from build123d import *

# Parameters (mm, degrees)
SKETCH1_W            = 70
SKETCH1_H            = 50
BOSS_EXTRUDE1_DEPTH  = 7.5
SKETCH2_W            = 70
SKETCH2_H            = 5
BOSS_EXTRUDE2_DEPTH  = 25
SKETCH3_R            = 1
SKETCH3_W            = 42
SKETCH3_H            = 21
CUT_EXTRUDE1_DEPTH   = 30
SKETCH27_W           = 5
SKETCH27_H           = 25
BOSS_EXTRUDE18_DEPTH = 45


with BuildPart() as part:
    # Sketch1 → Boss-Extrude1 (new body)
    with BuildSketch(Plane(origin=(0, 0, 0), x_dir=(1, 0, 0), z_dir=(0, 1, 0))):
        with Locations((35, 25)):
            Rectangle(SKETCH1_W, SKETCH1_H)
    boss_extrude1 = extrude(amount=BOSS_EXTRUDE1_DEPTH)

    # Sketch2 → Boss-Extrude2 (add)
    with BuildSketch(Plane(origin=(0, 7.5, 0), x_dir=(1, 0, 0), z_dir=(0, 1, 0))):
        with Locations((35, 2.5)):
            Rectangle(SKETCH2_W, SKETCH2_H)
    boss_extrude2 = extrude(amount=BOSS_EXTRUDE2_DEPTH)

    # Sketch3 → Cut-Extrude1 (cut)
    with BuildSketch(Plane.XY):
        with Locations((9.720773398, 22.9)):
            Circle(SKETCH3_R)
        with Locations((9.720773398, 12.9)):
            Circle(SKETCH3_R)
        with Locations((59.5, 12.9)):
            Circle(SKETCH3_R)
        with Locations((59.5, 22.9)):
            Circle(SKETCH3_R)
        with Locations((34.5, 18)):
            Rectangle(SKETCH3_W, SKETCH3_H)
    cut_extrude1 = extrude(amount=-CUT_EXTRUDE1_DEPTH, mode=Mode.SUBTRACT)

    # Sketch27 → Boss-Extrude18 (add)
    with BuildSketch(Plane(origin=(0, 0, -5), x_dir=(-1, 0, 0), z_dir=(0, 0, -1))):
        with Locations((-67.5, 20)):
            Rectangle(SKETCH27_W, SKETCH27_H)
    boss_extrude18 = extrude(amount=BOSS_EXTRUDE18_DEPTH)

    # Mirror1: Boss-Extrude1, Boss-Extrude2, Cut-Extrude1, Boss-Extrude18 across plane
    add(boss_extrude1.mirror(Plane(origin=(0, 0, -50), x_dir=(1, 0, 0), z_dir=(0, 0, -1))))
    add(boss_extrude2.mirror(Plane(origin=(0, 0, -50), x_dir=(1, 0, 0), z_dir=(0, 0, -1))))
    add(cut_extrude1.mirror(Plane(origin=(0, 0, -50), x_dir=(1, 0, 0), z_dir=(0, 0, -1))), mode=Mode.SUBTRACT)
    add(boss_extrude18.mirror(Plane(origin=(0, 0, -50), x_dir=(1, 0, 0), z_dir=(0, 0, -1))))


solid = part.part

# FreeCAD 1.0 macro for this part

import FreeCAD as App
import Part
import Sketcher

V = App.Vector

doc = App.newDocument("Part")
body = doc.addObject("PartDesign::Body", "Body")

# Sketch on XZ plane
sketch1 = body.newObject("Sketcher::SketchObject", "Sketch")
sketch1.AttachmentSupport = (doc.getObject("XZ_Plane"), [""])
sketch1.MapMode = "FlatFace"
sketch1.addGeometry(Part.LineSegment(V(0, -50, 0), V(0, 0, 0)), False)
sketch1.addGeometry(Part.LineSegment(V(0, 0, 0), V(70, 0, 0)), False)
sketch1.addGeometry(Part.LineSegment(V(70, 0, 0), V(70, -50, 0)), False)
sketch1.addGeometry(Part.LineSegment(V(70, -50, 0), V(0, -50, 0)), False)
sketch1.addConstraint(Sketcher.Constraint("Coincident", 0, 2, 1, 1))
sketch1.addConstraint(Sketcher.Constraint("Coincident", 1, 2, 2, 1))
sketch1.addConstraint(Sketcher.Constraint("Coincident", 2, 2, 3, 1))
sketch1.addConstraint(Sketcher.Constraint("Coincident", 3, 2, 0, 1))
sketch1.addConstraint(Sketcher.Constraint("Vertical", 0))
sketch1.addConstraint(Sketcher.Constraint("Horizontal", 1))
sketch1.addConstraint(Sketcher.Constraint("Vertical", 2))
sketch1.addConstraint(Sketcher.Constraint("Horizontal", 3))
sketch1.addConstraint(Sketcher.Constraint("Coincident", 0, 2, -1, 1))
sketch1.addConstraint(Sketcher.Constraint("DistanceX", 1, 1, 1, 2, 70.0))
sketch1.addConstraint(Sketcher.Constraint("DistanceY", 0, 1, 0, 2, 50.0))
pad1 = body.newObject("PartDesign::Pad", "Pad")
pad1.Profile = sketch1
pad1.Length = 7.5
pad1.Reversed = True

# Sketch on XZ plane
sketch2 = body.newObject("Sketcher::SketchObject", "Sketch001")
sketch2.AttachmentSupport = (doc.getObject("XZ_Plane"), [""])
sketch2.MapMode = "FlatFace"
sketch2.AttachmentOffset = App.Placement(V(0, 0, -7.5), App.Rotation())
sketch2.addGeometry(Part.LineSegment(V(0, -5, 0), V(0, 0, 0)), False)
sketch2.addGeometry(Part.LineSegment(V(0, 0, 0), V(70, 0, 0)), False)
sketch2.addGeometry(Part.LineSegment(V(70, 0, 0), V(70, -5, 0)), False)
sketch2.addGeometry(Part.LineSegment(V(70, -5, 0), V(0, -5, 0)), False)
sketch2.addConstraint(Sketcher.Constraint("Coincident", 0, 2, 1, 1))
sketch2.addConstraint(Sketcher.Constraint("Coincident", 1, 2, 2, 1))
sketch2.addConstraint(Sketcher.Constraint("Coincident", 2, 2, 3, 1))
sketch2.addConstraint(Sketcher.Constraint("Coincident", 3, 2, 0, 1))
sketch2.addConstraint(Sketcher.Constraint("Vertical", 0))
sketch2.addConstraint(Sketcher.Constraint("Horizontal", 1))
sketch2.addConstraint(Sketcher.Constraint("Vertical", 2))
sketch2.addConstraint(Sketcher.Constraint("Horizontal", 3))
sketch2.addConstraint(Sketcher.Constraint("Coincident", 0, 2, -1, 1))
sketch2.addConstraint(Sketcher.Constraint("DistanceX", 1, 1, 1, 2, 70.0))
sketch2.addConstraint(Sketcher.Constraint("DistanceY", 0, 1, 0, 2, 5.0))
pad2 = body.newObject("PartDesign::Pad", "Pad001")
pad2.Profile = sketch2
pad2.Length = 25
pad2.Reversed = True

# Sketch on XY plane
sketch3 = body.newObject("Sketcher::SketchObject", "Sketch002")
sketch3.AttachmentSupport = (doc.getObject("XY_Plane"), [""])
sketch3.MapMode = "FlatFace"
sketch3.addGeometry(Part.Circle(V(9.7, 22.9, 0), V(0, 0, 1), 1), False)
sketch3.addGeometry(Part.Circle(V(9.7, 12.9, 0), V(0, 0, 1), 1), False)
sketch3.addGeometry(Part.Circle(V(59.5, 12.9, 0), V(0, 0, 1), 1), False)
sketch3.addGeometry(Part.Circle(V(59.5, 22.9, 0), V(0, 0, 1), 1), False)
sketch3.addGeometry(Part.LineSegment(V(13.5, 28.5, 0), V(13.5, 7.5, 0)), False)
sketch3.addGeometry(Part.LineSegment(V(13.5, 7.5, 0), V(55.5, 7.5, 0)), False)
sketch3.addGeometry(Part.LineSegment(V(55.5, 7.5, 0), V(55.5, 28.5, 0)), False)
sketch3.addGeometry(Part.LineSegment(V(55.5, 28.5, 0), V(13.5, 28.5, 0)), False)
sketch3.addConstraint(Sketcher.Constraint("Coincident", 4, 2, 5, 1))
sketch3.addConstraint(Sketcher.Constraint("Coincident", 5, 2, 6, 1))
sketch3.addConstraint(Sketcher.Constraint("Coincident", 6, 2, 7, 1))
sketch3.addConstraint(Sketcher.Constraint("Coincident", 7, 2, 4, 1))
sketch3.addConstraint(Sketcher.Constraint("Vertical", 4))
sketch3.addConstraint(Sketcher.Constraint("Horizontal", 5))
sketch3.addConstraint(Sketcher.Constraint("Vertical", 6))
sketch3.addConstraint(Sketcher.Constraint("Horizontal", 7))
sketch3.addConstraint(Sketcher.Constraint("Equal", 0, 1))
sketch3.addConstraint(Sketcher.Constraint("Equal", 1, 2))
sketch3.addConstraint(Sketcher.Constraint("Equal", 2, 3))
sketch3.addConstraint(Sketcher.Constraint("Horizontal", 1, 3, 2, 3))
sketch3.addConstraint(Sketcher.Constraint("Horizontal", 0, 3, 3, 3))
sketch3.addConstraint(Sketcher.Constraint("Vertical", 0, 3, 1, 3))
sketch3.addConstraint(Sketcher.Constraint("Vertical", 2, 3, 3, 3))
sketch3.addConstraint(Sketcher.Constraint("Diameter", 0, 2.0))
sketch3.addConstraint(Sketcher.Constraint("DistanceX", 5, 1, 5, 2, 42.0))
sketch3.addConstraint(Sketcher.Constraint("DistanceY", 4, 2, 4, 1, 21.0))
sketch3.addConstraint(Sketcher.Constraint("DistanceY", 1, 3, 0, 3, 10.0))
sketch3.addConstraint(Sketcher.Constraint("DistanceX", 4, 2, 2, 3, 46.0))
sketch3.addConstraint(Sketcher.Constraint("DistanceY", -1, 1, 0, 3, 22.9))
sketch3.addConstraint(Sketcher.Constraint("DistanceX", -1, 1, 2, 3, 59.5))
sketch3.addConstraint(Sketcher.Constraint("DistanceY", -1, 1, 4, 2, 7.5))
sketch3.addConstraint(Sketcher.Constraint("DistanceX", -1, 1, 0, 3, 9.720773))
pocket1 = body.newObject("PartDesign::Pocket", "Pocket")
pocket1.Profile = sketch3
pocket1.Length = 30

# Sketch on XY plane
sketch4 = body.newObject("Sketcher::SketchObject", "Sketch003")
sketch4.AttachmentSupport = (doc.getObject("XY_Plane"), [""])
sketch4.MapMode = "FlatFace"
sketch4.AttachmentOffset = App.Placement(V(0, 0, -5), App.Rotation())
sketch4.addGeometry(Part.LineSegment(V(70, 32, 0), V(70, 8, 0)), False)
sketch4.addGeometry(Part.LineSegment(V(70, 8, 0), V(65, 8, 0)), False)
sketch4.addGeometry(Part.LineSegment(V(65, 8, 0), V(65, 32, 0)), False)
sketch4.addGeometry(Part.LineSegment(V(65, 32, 0), V(70, 32, 0)), False)
sketch4.addConstraint(Sketcher.Constraint("Coincident", 0, 2, 1, 1))
sketch4.addConstraint(Sketcher.Constraint("Coincident", 1, 2, 2, 1))
sketch4.addConstraint(Sketcher.Constraint("Coincident", 2, 2, 3, 1))
sketch4.addConstraint(Sketcher.Constraint("Coincident", 3, 2, 0, 1))
sketch4.addConstraint(Sketcher.Constraint("Vertical", 0))
sketch4.addConstraint(Sketcher.Constraint("Horizontal", 1))
sketch4.addConstraint(Sketcher.Constraint("Vertical", 2))
sketch4.addConstraint(Sketcher.Constraint("Horizontal", 3))
sketch4.addConstraint(Sketcher.Constraint("DistanceX", 1, 2, 1, 1, 5.0))
sketch4.addConstraint(Sketcher.Constraint("DistanceY", 0, 2, 0, 1, 25.0))
sketch4.addConstraint(Sketcher.Constraint("DistanceX", -1, 1, 0, 2, 70.0))
sketch4.addConstraint(Sketcher.Constraint("DistanceY", -1, 1, 0, 2, 7.5))
pad3 = body.newObject("PartDesign::Pad", "Pad002")
pad3.Profile = sketch4
pad3.Length = 45
pad3.Reversed = True
doc.recompute()

datumplane = body.newObject("PartDesign::Plane", "DatumPlane")
datumplane.AttachmentSupport = (doc.getObject("XY_Plane"), [""])
datumplane.MapMode = "FlatFace"
datumplane.AttachmentOffset = App.Placement(V(0, 0, -50), App.Rotation())
mirrored = body.newObject("PartDesign::Mirrored", "Mirrored")
mirrored.Originals = [pad1, pad2, pocket1, pad3]
mirrored.MirrorPlane = (datumplane, [""])
body.Tip = mirrored

doc.recompute()
